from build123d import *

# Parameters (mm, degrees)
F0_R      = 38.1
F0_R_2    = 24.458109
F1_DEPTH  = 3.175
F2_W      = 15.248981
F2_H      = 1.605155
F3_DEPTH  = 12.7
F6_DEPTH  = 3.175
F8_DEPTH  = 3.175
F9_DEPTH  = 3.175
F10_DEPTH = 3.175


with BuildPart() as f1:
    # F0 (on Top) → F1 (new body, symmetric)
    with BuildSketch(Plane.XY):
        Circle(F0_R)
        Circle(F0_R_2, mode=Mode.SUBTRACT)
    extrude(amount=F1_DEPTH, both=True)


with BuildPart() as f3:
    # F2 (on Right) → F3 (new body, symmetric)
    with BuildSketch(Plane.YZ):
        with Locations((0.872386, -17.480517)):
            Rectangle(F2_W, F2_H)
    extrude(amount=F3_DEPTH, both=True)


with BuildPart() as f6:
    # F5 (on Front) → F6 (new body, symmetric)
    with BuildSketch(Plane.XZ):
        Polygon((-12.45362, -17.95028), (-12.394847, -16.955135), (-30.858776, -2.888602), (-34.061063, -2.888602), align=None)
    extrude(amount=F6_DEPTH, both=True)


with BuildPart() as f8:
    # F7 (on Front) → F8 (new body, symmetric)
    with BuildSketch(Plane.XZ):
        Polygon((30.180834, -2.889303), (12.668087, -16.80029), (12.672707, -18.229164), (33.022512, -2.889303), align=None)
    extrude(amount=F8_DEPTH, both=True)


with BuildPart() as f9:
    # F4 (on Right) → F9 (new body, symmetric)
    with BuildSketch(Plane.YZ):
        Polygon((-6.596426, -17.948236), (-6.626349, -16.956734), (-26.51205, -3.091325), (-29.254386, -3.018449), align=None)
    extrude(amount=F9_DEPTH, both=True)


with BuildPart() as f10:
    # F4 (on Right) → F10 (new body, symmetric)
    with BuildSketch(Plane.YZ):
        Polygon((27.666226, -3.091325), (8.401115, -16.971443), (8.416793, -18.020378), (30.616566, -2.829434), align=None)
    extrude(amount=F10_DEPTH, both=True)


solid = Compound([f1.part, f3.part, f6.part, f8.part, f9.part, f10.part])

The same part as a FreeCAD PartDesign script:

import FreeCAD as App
import Part
import Sketcher
Q = App.Units.Quantity


def add_polygon(sketch, points):
    """Adds a closed chain of lines whose ends are joined by coincident constraints."""
    first, n = sketch.GeometryCount, len(points)
    for a, b in zip(points, points[1:] + points[:1]):
        sketch.addGeometry(Part.LineSegment(App.Vector(*a, 0), App.Vector(*b, 0)), False)
    for i in range(n):
        sketch.addConstraint(Sketcher.Constraint("Coincident", first + i, 2, first + (i + 1) % n, 1))

doc = App.newDocument("Part")
body = doc.addObject("PartDesign::Body", "Body")

# Sketch on XY plane
sketch1 = doc.addObject("Sketcher::SketchObject", "Sketch")
body.addObject(sketch1)
sketch1.AttachmentSupport = (doc.XY_Plane, [""])
sketch1.MapMode = "FlatFace"
sketch1.addGeometry([
    Part.Circle(App.Vector(0, 0, 0), App.Vector(0, 0, 1), 38),
    Part.Circle(App.Vector(0, 0, 0), App.Vector(0, 0, 1), 24),
], False)
sketch1.addConstraint([
    Sketcher.Constraint("Coincident", 0, 3, -1, 1),
    Sketcher.Constraint("Coincident", 1, 3, -1, 1),
    Sketcher.Constraint("Diameter", 0, Q("3 in")),
    Sketcher.Constraint("Diameter", 1, 48.916218),
])
pad1 = doc.addObject("PartDesign::Pad", "Pad")
body.addObject(pad1)
pad1.Profile = sketch1
pad1.Length = Q("0.25 in")
pad1.Midplane = True
body2 = doc.addObject("PartDesign::Body", "Body001")

# Sketch on YZ plane
sketch2 = doc.addObject("Sketcher::SketchObject", "Sketch001")
body2.addObject(sketch2)
sketch2.AttachmentSupport = (doc.getObject("YZ_Plane001"), [""])
sketch2.MapMode = "FlatFace"
add_polygon(sketch2, [(-6.8, -16.7), (-6.8, -18.3), (8.5, -18.3), (8.5, -16.7)])  # lines 0-3
sketch2.addConstraint([
    Sketcher.Constraint("Vertical", 0),
    Sketcher.Constraint("Horizontal", 1),
    Sketcher.Constraint("Vertical", 2),
    Sketcher.Constraint("Horizontal", 3),
    Sketcher.Constraint("DistanceX", 1, 1, 1, 2, 15.248981),
    Sketcher.Constraint("DistanceY", 0, 2, 0, 1, 1.605155),
    Sketcher.Constraint("DistanceY", 2, 2, -1, 1, 16.67794),
    Sketcher.Constraint("DistanceX", 0, 2, -1, 1, 6.752104),
])
pad2 = doc.addObject("PartDesign::Pad", "Pad001")
body2.addObject(pad2)
pad2.Profile = sketch2
pad2.Length = Q("1 in")
pad2.Midplane = True
body3 = doc.addObject("PartDesign::Body", "Body002")

# Sketch on XZ plane
sketch3 = doc.addObject("Sketcher::SketchObject", "Sketch002")
body3.addObject(sketch3)
sketch3.AttachmentSupport = (doc.getObject("XZ_Plane002"), [""])
sketch3.MapMode = "FlatFace"
add_polygon(sketch3, [(-12.5, -18), (-12.4, -17), (-30.9, -2.9), (-34.1, -2.9)])  # lines 0-3
sketch3.addConstraint([
    Sketcher.Constraint("Horizontal", 2),
    Sketcher.Constraint("DistanceX", 3, 2, -1, 1, Q("0.4903 in")),
    Sketcher.Constraint("Distance", 0, 0.996879),
    Sketcher.Constraint("Distance", 1, 23.211722),
    Sketcher.Constraint("DistanceX", 2, 2, 2, 1, 3.202287),
    Sketcher.Constraint("DistanceY", 3, 2, -1, 1, 17.95028),
    Sketcher.Constraint("DistanceX", 1, 2, 0, 2, 18.463929),
    Sketcher.Constraint("Distance", 3, 26.338864),
])
pad3 = doc.addObject("PartDesign::Pad", "Pad002")
body3.addObject(pad3)
pad3.Profile = sketch3
pad3.Length = Q("0.25 in")
pad3.Midplane = True
body4 = doc.addObject("PartDesign::Body", "Body003")

# Sketch on XZ plane
sketch4 = doc.addObject("Sketcher::SketchObject", "Sketch003")
body4.addObject(sketch4)
sketch4.AttachmentSupport = (doc.getObject("XZ_Plane003"), [""])
sketch4.MapMode = "FlatFace"
add_polygon(sketch4, [(30.2, -2.9), (12.7, -16.8), (12.7, -18.2), (33, -2.9)])  # lines 0-3
sketch4.addConstraint([
    Sketcher.Constraint("Horizontal", 3),
    Sketcher.Constraint("Distance", 1, 1.428881),
    Sketcher.Constraint("DistanceX", 3, 2, 3, 1, 2.841678),
    Sketcher.Constraint("DistanceY", 0, 2, -1, 1, 16.80029),
    Sketcher.Constraint("DistanceX", 0, 2, 1, 2, 0.00462),
    Sketcher.Constraint("DistanceY", 1, 2, 2, 2, 15.339861),
    Sketcher.Constraint("Distance", 0, 22.365417),
    Sketcher.Constraint("DistanceX", -1, 1, 0, 2, 12.668087),
])
pad4 = doc.addObject("PartDesign::Pad", "Pad003")
body4.addObject(pad4)
pad4.Profile = sketch4
pad4.Length = Q("0.25 in")
pad4.Midplane = True
body5 = doc.addObject("PartDesign::Body", "Body004")

# Sketch on YZ plane
sketch5 = doc.addObject("Sketcher::SketchObject", "Sketch004")
body5.addObject(sketch5)
sketch5.AttachmentSupport = (doc.getObject("YZ_Plane004"), [""])
sketch5.MapMode = "FlatFace"
add_polygon(sketch5, [(-6.596426, -17.948236), (-6.626349, -16.956734), (-26.51205, -3.091325), (-29.254386, -3.018449)])  # lines 0-3
sketch5.addConstraint([
    Sketcher.Constraint("DistanceX", 1, 2, 0, 2, 19.885701),
    Sketcher.Constraint("Distance", 3, 27.134511),
    Sketcher.Constraint("DistanceX", 0, 2, -1, 1, 6.626349),
    Sketcher.Constraint("DistanceY", 2, 2, -1, 1, 3.018449),
    Sketcher.Constraint("DistanceY", 0, 2, 1, 2, 13.865409),
    Sketcher.Constraint("DistanceY", 3, 2, 1, 2, 14.856911),
    Sketcher.Constraint("DistanceX", 2, 2, 3, 2, 22.65796),
    Sketcher.Constraint("Distance", 0, 0.991953),
])
pad5 = doc.addObject("PartDesign::Pad", "Pad004")
body5.addObject(pad5)
pad5.Profile = sketch5
pad5.Length = Q("0.25 in")
pad5.Midplane = True
body6 = doc.addObject("PartDesign::Body", "Body005")

# Sketch on YZ plane
sketch6 = doc.addObject("Sketcher::SketchObject", "Sketch005")
body6.addObject(sketch6)
sketch6.AttachmentSupport = (doc.getObject("YZ_Plane005"), [""])
sketch6.MapMode = "FlatFace"
add_polygon(sketch6, [(27.7, -3.1), (8.4, -17), (8.4, -18), (30.6, -2.8)])  # lines 0-3
sketch6.addConstraint([
    Sketcher.Constraint("Distance", 0, 23.744519),
    Sketcher.Constraint("Distance", 3, 2.961941),
    Sketcher.Constraint("DistanceY", 1, 2, -1, 1, 18.020378),
    Sketcher.Constraint("DistanceX", 0, 2, 2, 2, 22.215451),
    Sketcher.Constraint("DistanceY", 0, 2, 2, 2, 14.142009),
    Sketcher.Constraint("Distance", 1, 1.049052),
    Sketcher.Constraint("Distance", 2, 26.899716),
    Sketcher.Constraint("DistanceX", -1, 1, 0, 2, 8.401115),
])
pad6 = doc.addObject("PartDesign::Pad", "Pad005")
body6.addObject(pad6)
pad6.Profile = sketch6
pad6.Length = Q("0.25 in")
pad6.Midplane = True

doc.recompute()
